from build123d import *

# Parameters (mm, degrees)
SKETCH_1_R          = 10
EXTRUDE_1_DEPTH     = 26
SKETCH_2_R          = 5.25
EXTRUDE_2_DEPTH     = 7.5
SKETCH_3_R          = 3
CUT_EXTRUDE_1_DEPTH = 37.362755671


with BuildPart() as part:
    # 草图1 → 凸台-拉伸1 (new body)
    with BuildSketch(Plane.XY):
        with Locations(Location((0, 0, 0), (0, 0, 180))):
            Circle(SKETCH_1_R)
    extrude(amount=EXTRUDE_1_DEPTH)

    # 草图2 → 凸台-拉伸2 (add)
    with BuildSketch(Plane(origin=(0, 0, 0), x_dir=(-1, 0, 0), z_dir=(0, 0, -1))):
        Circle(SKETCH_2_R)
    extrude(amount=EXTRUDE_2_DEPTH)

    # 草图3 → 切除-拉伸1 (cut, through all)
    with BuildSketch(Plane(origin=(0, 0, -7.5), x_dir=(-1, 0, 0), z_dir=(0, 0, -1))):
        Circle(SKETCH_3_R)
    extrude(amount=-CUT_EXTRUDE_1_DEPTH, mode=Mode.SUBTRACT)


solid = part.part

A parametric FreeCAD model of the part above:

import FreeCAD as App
import Part
import Sketcher

V = App.Vector

doc = App.newDocument("Part")
params = doc.addObject("Spreadsheet::Sheet", "Params")
for row, (alias, value) in enumerate([
    ("sketch1_diameter", "20 mm"),
    ("pad1_length", "26 mm"),
    ("sketch2_diameter", "10.5 mm"),
    ("pad2_length", "7.5 mm"),
    ("sketch3_diameter", "6 mm"),
], start=1):
    params.set(f"A{row}", alias)
    params.set(f"B{row}", "=" + value)
    params.setAlias(f"B{row}", alias)

body = doc.addObject("PartDesign::Body", "Body")

# Sketch on XY plane
sketch1 = body.newObject("Sketcher::SketchObject", "Sketch")
sketch1.AttachmentSupport = (doc.getObject("XY_Plane"), [""])
sketch1.MapMode = "FlatFace"
sketch1.addGeometry(Part.Circle(V(0, 0, 0), V(0, 0, 1), 10), False)
sketch1.addConstraint(Sketcher.Constraint("Coincident", 0, 3, -1, 1))
sketch1.addConstraint(Sketcher.Constraint("Diameter", 0, 20.0))
sketch1.setExpression("Constraints[1]", "Params.sketch1_diameter")
pad1 = body.newObject("PartDesign::Pad", "Pad")
pad1.Profile = sketch1
pad1.setExpression("Length", "Params.pad1_length")

# Sketch on XY plane
sketch2 = body.newObject("Sketcher::SketchObject", "Sketch001")
sketch2.AttachmentSupport = (doc.getObject("XY_Plane"), [""])
sketch2.MapMode = "FlatFace"
sketch2.addGeometry(Part.Circle(V(0, 0, 0), V(0, 0, 1), 5.25), False)
sketch2.addConstraint(Sketcher.Constraint("Coincident", 0, 3, -1, 1))
sketch2.addConstraint(Sketcher.Constraint("Diameter", 0, 10.5))
sketch2.setExpression("Constraints[1]", "Params.sketch2_diameter")
pad2 = body.newObject("PartDesign::Pad", "Pad001")
pad2.Profile = sketch2
pad2.setExpression("Length", "Params.pad2_length")
pad2.Reversed = True

# Sketch on XY plane
sketch3 = body.newObject("Sketcher::SketchObject", "Sketch002")
sketch3.AttachmentSupport = (doc.getObject("XY_Plane"), [""])
sketch3.MapMode = "FlatFace"
sketch3.AttachmentOffset = App.Placement(V(0, 0, -7.5), App.Rotation())
sketch3.addGeometry(Part.Circle(V(0, 0, 0), V(0, 0, 1), 3), False)
sketch3.addConstraint(Sketcher.Constraint("Coincident", 0, 3, -1, 1))
sketch3.addConstraint(Sketcher.Constraint("Diameter", 0, 6.0))
sketch3.setExpression("Constraints[1]", "Params.sketch3_diameter")
pocket1 = body.newObject("PartDesign::Pocket", "Pocket")
pocket1.Profile = sketch3
pocket1.Type = "ThroughAll"
pocket1.Reversed = True

doc.recompute()
